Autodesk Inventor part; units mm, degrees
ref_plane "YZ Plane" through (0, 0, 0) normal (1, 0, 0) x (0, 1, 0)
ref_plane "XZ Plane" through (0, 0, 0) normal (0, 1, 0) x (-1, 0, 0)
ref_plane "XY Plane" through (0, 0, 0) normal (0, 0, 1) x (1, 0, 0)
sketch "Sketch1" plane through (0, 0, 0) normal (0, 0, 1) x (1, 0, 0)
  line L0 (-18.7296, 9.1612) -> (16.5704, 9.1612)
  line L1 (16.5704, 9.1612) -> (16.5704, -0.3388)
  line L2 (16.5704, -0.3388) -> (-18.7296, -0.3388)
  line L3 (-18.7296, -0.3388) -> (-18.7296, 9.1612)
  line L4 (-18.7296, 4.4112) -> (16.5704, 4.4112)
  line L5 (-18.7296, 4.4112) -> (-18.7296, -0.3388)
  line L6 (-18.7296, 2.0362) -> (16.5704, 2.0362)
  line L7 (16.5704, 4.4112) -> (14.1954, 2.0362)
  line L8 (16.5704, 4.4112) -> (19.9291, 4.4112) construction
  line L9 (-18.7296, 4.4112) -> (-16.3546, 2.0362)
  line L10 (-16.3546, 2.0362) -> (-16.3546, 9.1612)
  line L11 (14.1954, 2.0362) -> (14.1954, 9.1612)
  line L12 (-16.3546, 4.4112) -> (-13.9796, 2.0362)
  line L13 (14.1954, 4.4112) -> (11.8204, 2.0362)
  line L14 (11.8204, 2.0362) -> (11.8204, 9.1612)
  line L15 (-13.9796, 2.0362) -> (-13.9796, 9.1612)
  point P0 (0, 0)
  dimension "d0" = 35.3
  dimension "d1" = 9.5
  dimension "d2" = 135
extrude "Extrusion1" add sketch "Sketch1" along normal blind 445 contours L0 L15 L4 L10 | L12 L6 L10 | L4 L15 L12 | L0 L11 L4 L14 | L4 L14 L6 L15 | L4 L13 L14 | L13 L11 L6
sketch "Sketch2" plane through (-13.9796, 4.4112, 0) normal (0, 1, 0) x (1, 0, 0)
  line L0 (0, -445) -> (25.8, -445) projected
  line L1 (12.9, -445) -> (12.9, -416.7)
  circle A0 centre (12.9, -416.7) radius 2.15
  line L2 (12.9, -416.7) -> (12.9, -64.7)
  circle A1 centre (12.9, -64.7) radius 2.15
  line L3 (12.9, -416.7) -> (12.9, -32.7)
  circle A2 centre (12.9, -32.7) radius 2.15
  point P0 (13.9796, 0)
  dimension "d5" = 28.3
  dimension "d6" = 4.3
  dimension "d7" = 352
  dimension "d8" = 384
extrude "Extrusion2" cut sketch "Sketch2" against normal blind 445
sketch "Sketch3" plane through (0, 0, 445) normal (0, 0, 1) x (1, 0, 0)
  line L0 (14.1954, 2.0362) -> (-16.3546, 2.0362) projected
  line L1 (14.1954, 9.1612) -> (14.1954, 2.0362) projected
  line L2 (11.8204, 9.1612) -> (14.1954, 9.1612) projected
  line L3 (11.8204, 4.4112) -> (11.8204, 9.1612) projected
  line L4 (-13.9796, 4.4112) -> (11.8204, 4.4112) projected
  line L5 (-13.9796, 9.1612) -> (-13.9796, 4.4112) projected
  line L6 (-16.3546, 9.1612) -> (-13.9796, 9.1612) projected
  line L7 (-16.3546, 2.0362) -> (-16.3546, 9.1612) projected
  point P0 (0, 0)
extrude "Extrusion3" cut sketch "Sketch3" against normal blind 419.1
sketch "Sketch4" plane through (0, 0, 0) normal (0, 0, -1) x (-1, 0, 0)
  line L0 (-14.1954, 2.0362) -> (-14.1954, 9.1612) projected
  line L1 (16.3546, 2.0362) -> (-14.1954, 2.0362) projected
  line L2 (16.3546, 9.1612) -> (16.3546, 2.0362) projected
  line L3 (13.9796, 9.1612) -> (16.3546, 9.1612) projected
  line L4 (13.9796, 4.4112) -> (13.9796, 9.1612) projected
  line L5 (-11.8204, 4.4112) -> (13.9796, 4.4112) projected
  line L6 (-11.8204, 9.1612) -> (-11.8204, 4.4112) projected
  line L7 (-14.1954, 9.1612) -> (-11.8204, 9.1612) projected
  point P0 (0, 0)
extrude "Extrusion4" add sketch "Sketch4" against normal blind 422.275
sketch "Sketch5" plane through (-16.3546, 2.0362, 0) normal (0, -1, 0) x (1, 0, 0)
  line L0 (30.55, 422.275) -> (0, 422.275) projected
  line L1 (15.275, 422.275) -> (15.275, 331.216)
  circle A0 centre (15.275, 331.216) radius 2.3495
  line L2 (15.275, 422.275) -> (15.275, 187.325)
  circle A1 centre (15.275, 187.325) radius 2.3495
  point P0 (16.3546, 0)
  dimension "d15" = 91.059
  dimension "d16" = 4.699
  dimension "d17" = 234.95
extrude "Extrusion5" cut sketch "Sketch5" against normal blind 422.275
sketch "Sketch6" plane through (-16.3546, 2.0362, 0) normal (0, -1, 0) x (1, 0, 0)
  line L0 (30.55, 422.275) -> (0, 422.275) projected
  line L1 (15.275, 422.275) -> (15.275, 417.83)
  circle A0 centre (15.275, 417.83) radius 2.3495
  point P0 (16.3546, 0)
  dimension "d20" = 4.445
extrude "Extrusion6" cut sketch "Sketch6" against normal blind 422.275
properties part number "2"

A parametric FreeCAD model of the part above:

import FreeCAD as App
import Part
import Sketcher
Q = App.Units.Quantity

doc = App.newDocument("Part")
body = doc.addObject("PartDesign::Body", "Body")

sketch1 = doc.addObject("Sketcher::SketchObject", "Sketch")
body.addObject(sketch1)
sketch1.AttachmentSupport = (doc.XY_Plane, [""])
sketch1.MapMode = "FlatFace"
sketch1.addGeometry([
    Part.LineSegment(App.Vector(-14, 9.2, 0), App.Vector(-16.4, 9.2, 0)),
    Part.LineSegment(App.Vector(-16.4, 9.2, 0), App.Vector(-16.4, 2, 0)),
    Part.LineSegment(App.Vector(-16.4, 2, 0), App.Vector(14.2, 2, 0)),
    Part.LineSegment(App.Vector(14.2, 2, 0), App.Vector(14.2, 9.2, 0)),
    Part.LineSegment(App.Vector(14.2, 9.2, 0), App.Vector(11.8, 9.2, 0)),
    Part.LineSegment(App.Vector(11.8, 9.2, 0), App.Vector(11.8, 4.4, 0)),
    Part.LineSegment(App.Vector(11.8, 4.4, 0), App.Vector(-14, 4.4, 0)),
    Part.LineSegment(App.Vector(-14, 4.4, 0), App.Vector(-14, 9.2, 0)),
], False)
sketch1.addConstraint([
    Sketcher.Constraint("Coincident", 0, 2, 1, 1),
    Sketcher.Constraint("Coincident", 1, 2, 2, 1),
    Sketcher.Constraint("Coincident", 2, 2, 3, 1),
    Sketcher.Constraint("Coincident", 3, 2, 4, 1),
    Sketcher.Constraint("Coincident", 4, 2, 5, 1),
    Sketcher.Constraint("Coincident", 5, 2, 6, 1),
    Sketcher.Constraint("Coincident", 6, 2, 7, 1),
    Sketcher.Constraint("Coincident", 7, 2, 0, 1),
    Sketcher.Constraint("Horizontal", 0),
    Sketcher.Constraint("Vertical", 1),
    Sketcher.Constraint("Horizontal", 2),
    Sketcher.Constraint("Vertical", 3),
    Sketcher.Constraint("Horizontal", 4),
    Sketcher.Constraint("Vertical", 5),
    Sketcher.Constraint("Horizontal", 6),
    Sketcher.Constraint("Vertical", 7),
    Sketcher.Constraint("Horizontal", 0, 2, 3, 2),
    Sketcher.Constraint("Equal", 0, 4),
    Sketcher.Constraint("DistanceY", 5, 2, 5, 1, Q("0.187 in")),
    Sketcher.Constraint("DistanceX", 0, 2, 0, 1, Q("0.0935 in")),
    Sketcher.Constraint("DistanceY", 1, 2, 1, 1, Q("0.2805 in")),
    Sketcher.Constraint("DistanceX", 2, 1, 2, 2, 30.55),
    Sketcher.Constraint("DistanceX", 0, 2, -1, 1, 16.3546),
    Sketcher.Constraint("DistanceY", -1, 1, 0, 2, 9.1612),
])
pad1 = doc.addObject("PartDesign::Pad", "Pad")
body.addObject(pad1)
pad1.Profile = sketch1
pad1.Length = 445

sketch2 = doc.addObject("Sketcher::SketchObject", "Sketch001")
body.addObject(sketch2)
sketch2.AttachmentSupport = (doc.XZ_Plane, [""])
sketch2.MapMode = "FlatFace"
sketch2.AttachmentOffset = App.Placement(App.Vector(0, 0, -4.4112), App.Rotation())
sketch2.addGeometry([
    Part.Circle(App.Vector(-1.1, 416.7, 0), App.Vector(0, 0, 1), 2.1),
    Part.Circle(App.Vector(-1.1, 32.7, 0), App.Vector(0, 0, 1), 2.1),
    Part.Circle(App.Vector(-1.1, 64.7, 0), App.Vector(0, 0, 1), 2.1),
], False)
sketch2.addConstraint([
    Sketcher.Constraint("Equal", 0, 1),
    Sketcher.Constraint("Equal", 1, 2),
    Sketcher.Constraint("Vertical", 0, 3, 1, 3),
    Sketcher.Constraint("Vertical", 1, 3, 2, 3),
    Sketcher.Constraint("Diameter", 0, Q("0.1693 in")),
    Sketcher.Constraint("DistanceY", 1, 3, 0, 3, Q("15.1181 in")),
    Sketcher.Constraint("DistanceY", 2, 3, 0, 3, 352.0),
    Sketcher.Constraint("DistanceX", 0, 3, -1, 1, Q("0.0425 in")),
    Sketcher.Constraint("DistanceY", -1, 1, 0, 3, Q("16.4055 in")),
])
pocket1 = doc.addObject("PartDesign::Pocket", "Pocket")
body.addObject(pocket1)
pocket1.Profile = sketch2
pocket1.Length = 445
pocket1.Reversed = True

sketch3 = doc.addObject("Sketcher::SketchObject", "Sketch002")
body.addObject(sketch3)
sketch3.AttachmentSupport = (doc.XY_Plane, [""])
sketch3.MapMode = "FlatFace"
sketch3.AttachmentOffset = App.Placement(App.Vector(0, 0, 445), App.Rotation())
sketch3.addGeometry([
    Part.LineSegment(App.Vector(-16.4, 2, 0), App.Vector(14.2, 2, 0)),
    Part.LineSegment(App.Vector(14.2, 2, 0), App.Vector(14.2, 9.2, 0)),
    Part.LineSegment(App.Vector(14.2, 9.2, 0), App.Vector(11.8, 9.2, 0)),
    Part.LineSegment(App.Vector(11.8, 9.2, 0), App.Vector(11.8, 4.4, 0)),
    Part.LineSegment(App.Vector(11.8, 4.4, 0), App.Vector(-14, 4.4, 0)),
    Part.LineSegment(App.Vector(-14, 4.4, 0), App.Vector(-14, 9.2, 0)),
    Part.LineSegment(App.Vector(-14, 9.2, 0), App.Vector(-16.4, 9.2, 0)),
    Part.LineSegment(App.Vector(-16.4, 9.2, 0), App.Vector(-16.4, 2, 0)),
], False)
sketch3.addConstraint([
    Sketcher.Constraint("Coincident", 0, 2, 1, 1),
    Sketcher.Constraint("Coincident", 1, 2, 2, 1),
    Sketcher.Constraint("Coincident", 2, 2, 3, 1),
    Sketcher.Constraint("Coincident", 3, 2, 4, 1),
    Sketcher.Constraint("Coincident", 4, 2, 5, 1),
    Sketcher.Constraint("Coincident", 5, 2, 6, 1),
    Sketcher.Constraint("Coincident", 6, 2, 7, 1),
    Sketcher.Constraint("Coincident", 7, 2, 0, 1),
    Sketcher.Constraint("Horizontal", 0),
    Sketcher.Constraint("Vertical", 1),
    Sketcher.Constraint("Horizontal", 2),
    Sketcher.Constraint("Vertical", 3),
    Sketcher.Constraint("Horizontal", 4),
    Sketcher.Constraint("Vertical", 5),
    Sketcher.Constraint("Horizontal", 6),
    Sketcher.Constraint("Vertical", 7),
    Sketcher.Constraint("Horizontal", 2, 2, 5, 2),
    Sketcher.Constraint("Equal", 2, 6),
    Sketcher.Constraint("DistanceY", 3, 2, 3, 1, Q("0.187 in")),
    Sketcher.Constraint("DistanceX", 2, 2, 2, 1, Q("0.0935 in")),
    Sketcher.Constraint("DistanceY", 1, 1, 1, 2, Q("0.2805 in")),
    Sketcher.Constraint("DistanceX", 0, 1, 0, 2, 30.55),
    Sketcher.Constraint("DistanceX", -1, 1, 0, 2, 14.1954),
    Sketcher.Constraint("DistanceY", -1, 1, 0, 2, 2.0362),
])
pocket2 = doc.addObject("PartDesign::Pocket", "Pocket001")
body.addObject(pocket2)
pocket2.Profile = sketch3
pocket2.Length = Q("16.5 in")

sketch4 = doc.addObject("Sketcher::SketchObject", "Sketch003")
body.addObject(sketch4)
sketch4.AttachmentSupport = (doc.XY_Plane, [""])
sketch4.MapMode = "FlatFace"
sketch4.addGeometry([
    Part.LineSegment(App.Vector(14.2, 9.2, 0), App.Vector(14.2, 2, 0)),
    Part.LineSegment(App.Vector(14.2, 2, 0), App.Vector(-16.4, 2, 0)),
    Part.LineSegment(App.Vector(-16.4, 2, 0), App.Vector(-16.4, 9.2, 0)),
    Part.LineSegment(App.Vector(-16.4, 9.2, 0), App.Vector(-14, 9.2, 0)),
    Part.LineSegment(App.Vector(-14, 9.2, 0), App.Vector(-14, 4.4, 0)),
    Part.LineSegment(App.Vector(-14, 4.4, 0), App.Vector(11.8, 4.4, 0)),
    Part.LineSegment(App.Vector(11.8, 4.4, 0), App.Vector(11.8, 9.2, 0)),
    Part.LineSegment(App.Vector(11.8, 9.2, 0), App.Vector(14.2, 9.2, 0)),
], False)
sketch4.addConstraint([
    Sketcher.Constraint("Coincident", 0, 2, 1, 1),
    Sketcher.Constraint("Coincident", 1, 2, 2, 1),
    Sketcher.Constraint("Coincident", 2, 2, 3, 1),
    Sketcher.Constraint("Coincident", 3, 2, 4, 1),
    Sketcher.Constraint("Coincident", 4, 2, 5, 1),
    Sketcher.Constraint("Coincident", 5, 2, 6, 1),
    Sketcher.Constraint("Coincident", 6, 2, 7, 1),
    Sketcher.Constraint("Coincident", 7, 2, 0, 1),
    Sketcher.Constraint("Vertical", 0),
    Sketcher.Constraint("Horizontal", 1),
    Sketcher.Constraint("Vertical", 2),
    Sketcher.Constraint("Horizontal", 3),
    Sketcher.Constraint("Vertical", 4),
    Sketcher.Constraint("Horizontal", 5),
    Sketcher.Constraint("Vertical", 6),
    Sketcher.Constraint("Horizontal", 7),
    Sketcher.Constraint("Horizontal", 3, 2, 6, 2),
    Sketcher.Constraint("Equal", 3, 7),
    Sketcher.Constraint("DistanceY", 4, 2, 4, 1, Q("0.187 in")),
    Sketcher.Constraint("DistanceX", 3, 1, 3, 2, Q("0.0935 in")),
    Sketcher.Constraint("DistanceY", 0, 2, 0, 1, Q("0.2805 in")),
    Sketcher.Constraint("DistanceX", 1, 2, 1, 1, 30.55),
    Sketcher.Constraint("DistanceX", -1, 1, 0, 2, 14.1954),
    Sketcher.Constraint("DistanceY", -1, 1, 0, 2, 2.0362),
])
pad2 = doc.addObject("PartDesign::Pad", "Pad001")
body.addObject(pad2)
pad2.Profile = sketch4
pad2.Length = Q("16.625 in")

sketch5 = doc.addObject("Sketcher::SketchObject", "Sketch004")
body.addObject(sketch5)
sketch5.AttachmentSupport = (doc.XZ_Plane, [""])
sketch5.MapMode = "FlatFace"
sketch5.AttachmentOffset = App.Placement(App.Vector(0, 0, -2.0362), App.Rotation())
sketch5.addGeometry([
    Part.Circle(App.Vector(-1.1, 331.2, 0), App.Vector(0, 0, 1), 2.3),
    Part.Circle(App.Vector(-1.1, 187.3, 0), App.Vector(0, 0, 1), 2.3),
], False)
sketch5.addConstraint([
    Sketcher.Constraint("Equal", 0, 1),
    Sketcher.Constraint("Vertical", 0, 3, 1, 3),
    Sketcher.Constraint("Diameter", 0, Q("0.185 in")),
    Sketcher.Constraint("DistanceY", -1, 1, 0, 3, Q("13.04 in")),
    Sketcher.Constraint("DistanceY", -1, 1, 1, 3, Q("7.375 in")),
    Sketcher.Constraint("DistanceX", 0, 3, -1, 1, Q("0.0425 in")),
])
pocket3 = doc.addObject("PartDesign::Pocket", "Pocket002")
body.addObject(pocket3)
pocket3.Profile = sketch5
pocket3.Length = Q("16.625 in")

sketch6 = doc.addObject("Sketcher::SketchObject", "Sketch005")
body.addObject(sketch6)
sketch6.AttachmentSupport = (doc.XZ_Plane, [""])
sketch6.MapMode = "FlatFace"
sketch6.AttachmentOffset = App.Placement(App.Vector(0, 0, -2.0362), App.Rotation())
sketch6.addGeometry(Part.Circle(App.Vector(-1.1, 417.8, 0), App.Vector(0, 0, 1), 2.3), False)
sketch6.addConstraint([
    Sketcher.Constraint("Diameter", 0, Q("0.185 in")),
    Sketcher.Constraint("DistanceY", -1, 1, 0, 3, Q("16.45 in")),
    Sketcher.Constraint("DistanceX", 0, 3, -1, 1, Q("0.0425 in")),
])
pocket4 = doc.addObject("PartDesign::Pocket", "Pocket003")
body.addObject(pocket4)
pocket4.Profile = sketch6
pocket4.Length = Q("16.625 in")

doc.recompute()
